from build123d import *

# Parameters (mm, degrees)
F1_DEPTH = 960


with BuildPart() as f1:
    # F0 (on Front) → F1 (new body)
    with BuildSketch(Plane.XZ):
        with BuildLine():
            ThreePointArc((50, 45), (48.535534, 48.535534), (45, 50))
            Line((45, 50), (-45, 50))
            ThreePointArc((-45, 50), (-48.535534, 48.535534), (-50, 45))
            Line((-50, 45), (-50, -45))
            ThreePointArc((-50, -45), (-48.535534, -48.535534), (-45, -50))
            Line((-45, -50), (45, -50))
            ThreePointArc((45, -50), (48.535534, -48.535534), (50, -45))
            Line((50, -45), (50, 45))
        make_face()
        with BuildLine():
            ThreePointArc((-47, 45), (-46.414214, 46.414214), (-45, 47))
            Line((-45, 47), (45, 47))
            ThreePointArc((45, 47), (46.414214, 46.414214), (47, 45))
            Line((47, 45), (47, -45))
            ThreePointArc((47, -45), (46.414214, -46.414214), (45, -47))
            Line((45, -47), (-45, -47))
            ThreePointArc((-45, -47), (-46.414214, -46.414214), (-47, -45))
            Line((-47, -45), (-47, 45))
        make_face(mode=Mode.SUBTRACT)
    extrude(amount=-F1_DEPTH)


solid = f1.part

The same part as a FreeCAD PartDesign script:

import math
import FreeCAD as App
import Part
import Sketcher
from FreeCAD import Vector

doc = App.newDocument("Part")
body = doc.addObject("PartDesign::Body", "Body")

# Sketch on XZ plane
sketch1 = doc.addObject("Sketcher::SketchObject", "Sketch")
body.addObject(sketch1)
sketch1.AttachmentSupport = (doc.XZ_Plane, [""])
sketch1.MapMode = "FlatFace"
sketch1.addGeometry(Part.ArcOfCircle(Part.Circle(Vector(45, 45, 0), Vector(0, 0, 1), 5), math.radians(-0.000004), math.radians(90.000004)), False)
sketch1.addGeometry(Part.LineSegment(Vector(45, 50, 0), Vector(-45, 50, 0)), False)
sketch1.addGeometry(Part.ArcOfCircle(Part.Circle(Vector(-45, 45, 0), Vector(0, 0, 1), 5), math.radians(89.999996), math.radians(180.000004)), False)
sketch1.addGeometry(Part.LineSegment(Vector(-50, 45, 0), Vector(-50, -45, 0)), False)
sketch1.addGeometry(Part.ArcOfCircle(Part.Circle(Vector(-45, -45, 0), Vector(0, 0, 1), 5), math.radians(179.999996), math.radians(270.000004)), False)
sketch1.addGeometry(Part.LineSegment(Vector(-45, -50, 0), Vector(45, -50, 0)), False)
sketch1.addGeometry(Part.ArcOfCircle(Part.Circle(Vector(45, -45, 0), Vector(0, 0, 1), 5), math.radians(-90.000004), math.radians(0.000004)), False)
sketch1.addGeometry(Part.LineSegment(Vector(50, -45, 0), Vector(50, 45, 0)), False)
sketch1.addGeometry(Part.LineSegment(Vector(-47, -45, 0), Vector(-47, 45, 0)), False)
sketch1.addGeometry(Part.ArcOfCircle(Part.Circle(Vector(-45.000001, 45.000001, 0), Vector(0, 0, 1), 1.999999), math.radians(89.999957), math.radians(180.000043)), False)
sketch1.addGeometry(Part.LineSegment(Vector(-45, 47, 0), Vector(45, 47, 0)), False)
sketch1.addGeometry(Part.ArcOfCircle(Part.Circle(Vector(45.000001, 45.000001, 0), Vector(0, 0, 1), 1.999999), math.radians(-0.000043), math.radians(90.000043)), False)
sketch1.addGeometry(Part.LineSegment(Vector(47, 45, 0), Vector(47, -45, 0)), False)
sketch1.addGeometry(Part.ArcOfCircle(Part.Circle(Vector(45.000001, -45.000001, 0), Vector(0, 0, 1), 1.999999), math.radians(-90.000043), math.radians(0.000043)), False)
sketch1.addGeometry(Part.LineSegment(Vector(45, -47, 0), Vector(-45, -47, 0)), False)
sketch1.addGeometry(Part.ArcOfCircle(Part.Circle(Vector(-45.000001, -45.000001, 0), Vector(0, 0, 1), 1.999999), math.radians(179.999957), math.radians(270.000043)), False)
sketch1.addConstraint(Sketcher.Constraint("Tangent", 0, 2, 1, 1))
sketch1.addConstraint(Sketcher.Constraint("Tangent", 1, 2, 2, 1))
sketch1.addConstraint(Sketcher.Constraint("Tangent", 2, 2, 3, 1))
sketch1.addConstraint(Sketcher.Constraint("Tangent", 3, 2, 4, 1))
sketch1.addConstraint(Sketcher.Constraint("Tangent", 4, 2, 5, 1))
sketch1.addConstraint(Sketcher.Constraint("Tangent", 5, 2, 6, 1))
sketch1.addConstraint(Sketcher.Constraint("Tangent", 6, 2, 7, 1))
sketch1.addConstraint(Sketcher.Constraint("Tangent", 7, 2, 0, 1))
sketch1.addConstraint(Sketcher.Constraint("Tangent", 8, 2, 9, 2))
sketch1.addConstraint(Sketcher.Constraint("Tangent", 9, 1, 10, 1))
sketch1.addConstraint(Sketcher.Constraint("Tangent", 10, 2, 11, 2))
sketch1.addConstraint(Sketcher.Constraint("Tangent", 11, 1, 12, 1))
sketch1.addConstraint(Sketcher.Constraint("Tangent", 12, 2, 13, 2))
sketch1.addConstraint(Sketcher.Constraint("Tangent", 13, 1, 14, 1))
sketch1.addConstraint(Sketcher.Constraint("Tangent", 14, 2, 15, 2))
sketch1.addConstraint(Sketcher.Constraint("Tangent", 15, 1, 8, 1))
sketch1.addConstraint(Sketcher.Constraint("Horizontal", 1))
sketch1.addConstraint(Sketcher.Constraint("Vertical", 3))
sketch1.addConstraint(Sketcher.Constraint("Horizontal", 5))
sketch1.addConstraint(Sketcher.Constraint("Vertical", 7))
sketch1.addConstraint(Sketcher.Constraint("Vertical", 8))
sketch1.addConstraint(Sketcher.Constraint("Horizontal", 10))
sketch1.addConstraint(Sketcher.Constraint("Vertical", 12))
sketch1.addConstraint(Sketcher.Constraint("Horizontal", 14))
sketch1.addConstraint(Sketcher.Constraint("Coincident", 9, 3, 2, 3))
sketch1.addConstraint(Sketcher.Constraint("Coincident", 11, 3, 0, 3))
sketch1.addConstraint(Sketcher.Constraint("Coincident", 13, 3, 6, 3))
sketch1.addConstraint(Sketcher.Constraint("Equal", 0, 2))
sketch1.addConstraint(Sketcher.Constraint("Equal", 2, 4))
sketch1.addConstraint(Sketcher.Constraint("Equal", 4, 6))
sketch1.addConstraint(Sketcher.Constraint("Equal", 13, 15))
sketch1.addConstraint(Sketcher.Constraint("Symmetric", 0, 3, 4, 3, -1, 1))
sketch1.addConstraint(Sketcher.Constraint("Equal", 14, 3))
sketch1.addConstraint(Sketcher.Constraint("Radius", 0, 5.0))
sketch1.addConstraint(Sketcher.Constraint("Radius", 9, 1.999999))
sketch1.addConstraint(Sketcher.Constraint("DistanceX", 1, 2, 1, 1, 90.0))
pad1 = doc.addObject("PartDesign::Pad", "Pad")
body.addObject(pad1)
pad1.Profile = sketch1
pad1.Length = 960
pad1.Reversed = True

doc.recompute()
